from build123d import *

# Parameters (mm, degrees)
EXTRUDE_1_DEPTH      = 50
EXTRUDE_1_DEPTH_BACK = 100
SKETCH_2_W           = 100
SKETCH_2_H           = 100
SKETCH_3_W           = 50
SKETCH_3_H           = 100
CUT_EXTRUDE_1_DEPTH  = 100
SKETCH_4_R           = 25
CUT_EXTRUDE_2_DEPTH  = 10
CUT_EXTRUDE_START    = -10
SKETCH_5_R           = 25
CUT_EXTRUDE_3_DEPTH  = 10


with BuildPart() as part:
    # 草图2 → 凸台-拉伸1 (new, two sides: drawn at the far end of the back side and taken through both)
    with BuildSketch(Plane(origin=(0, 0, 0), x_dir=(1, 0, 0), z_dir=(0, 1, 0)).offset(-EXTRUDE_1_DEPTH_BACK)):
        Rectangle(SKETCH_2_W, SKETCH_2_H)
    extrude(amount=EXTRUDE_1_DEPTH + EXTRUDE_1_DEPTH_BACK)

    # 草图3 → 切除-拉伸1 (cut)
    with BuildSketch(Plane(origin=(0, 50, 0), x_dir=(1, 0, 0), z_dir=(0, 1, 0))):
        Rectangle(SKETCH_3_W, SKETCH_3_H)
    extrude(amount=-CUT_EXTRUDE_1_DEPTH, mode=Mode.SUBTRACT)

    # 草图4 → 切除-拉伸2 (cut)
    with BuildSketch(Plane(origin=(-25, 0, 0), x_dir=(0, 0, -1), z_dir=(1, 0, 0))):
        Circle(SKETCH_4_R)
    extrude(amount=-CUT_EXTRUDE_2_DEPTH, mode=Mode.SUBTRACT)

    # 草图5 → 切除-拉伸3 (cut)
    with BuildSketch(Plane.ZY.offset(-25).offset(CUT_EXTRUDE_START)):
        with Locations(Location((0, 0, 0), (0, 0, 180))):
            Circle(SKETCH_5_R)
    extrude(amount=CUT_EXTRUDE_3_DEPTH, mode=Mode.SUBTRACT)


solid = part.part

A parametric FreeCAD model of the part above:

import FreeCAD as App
import Part
import Sketcher

doc = App.newDocument("Part")
body = doc.addObject("PartDesign::Body", "Body")

# Sketch on XZ plane
sketch1 = body.newObject("Sketcher::SketchObject", "Sketch")
sketch1.AttachmentSupport = (doc.getObject("XZ_Plane"), [""])
sketch1.MapMode = "FlatFace"
sketch1.addGeometry(Part.LineSegment(App.Vector(-50, -50, 0), App.Vector(-50, 50, 0)), False)
sketch1.addGeometry(Part.LineSegment(App.Vector(-50, 50, 0), App.Vector(50, 50, 0)), False)
sketch1.addGeometry(Part.LineSegment(App.Vector(50, 50, 0), App.Vector(50, -50, 0)), False)
sketch1.addGeometry(Part.LineSegment(App.Vector(50, -50, 0), App.Vector(-50, -50, 0)), False)
sketch1.addConstraint(Sketcher.Constraint("Coincident", 0, 2, 1, 1))
sketch1.addConstraint(Sketcher.Constraint("Coincident", 1, 2, 2, 1))
sketch1.addConstraint(Sketcher.Constraint("Coincident", 2, 2, 3, 1))
sketch1.addConstraint(Sketcher.Constraint("Coincident", 3, 2, 0, 1))
sketch1.addConstraint(Sketcher.Constraint("Vertical", 0))
sketch1.addConstraint(Sketcher.Constraint("Horizontal", 1))
sketch1.addConstraint(Sketcher.Constraint("Vertical", 2))
sketch1.addConstraint(Sketcher.Constraint("Horizontal", 3))
sketch1.addConstraint(Sketcher.Constraint("Symmetric", 0, 2, 2, 2, -1, 1))
sketch1.addConstraint(Sketcher.Constraint("Equal", 3, 0))
sketch1.addConstraint(Sketcher.Constraint("DistanceX", 1, 1, 1, 2, 100.0))
pad1 = body.newObject("PartDesign::Pad", "Pad")
pad1.Profile = sketch1
pad1.Type = "TwoLengths"
pad1.Length = 50
pad1.Length2 = 100
pad1.Reversed = True

# Sketch on XZ plane
sketch2 = body.newObject("Sketcher::SketchObject", "Sketch001")
sketch2.AttachmentSupport = (doc.getObject("XZ_Plane"), [""])
sketch2.MapMode = "FlatFace"
sketch2.AttachmentOffset = App.Placement(App.Vector(0, 0, -50), App.Rotation())
sketch2.addGeometry(Part.LineSegment(App.Vector(-25, -50, 0), App.Vector(-25, 50, 0)), False)
sketch2.addGeometry(Part.LineSegment(App.Vector(-25, 50, 0), App.Vector(25, 50, 0)), False)
sketch2.addGeometry(Part.LineSegment(App.Vector(25, 50, 0), App.Vector(25, -50, 0)), False)
sketch2.addGeometry(Part.LineSegment(App.Vector(25, -50, 0), App.Vector(-25, -50, 0)), False)
sketch2.addConstraint(Sketcher.Constraint("Coincident", 0, 2, 1, 1))
sketch2.addConstraint(Sketcher.Constraint("Coincident", 1, 2, 2, 1))
sketch2.addConstraint(Sketcher.Constraint("Coincident", 2, 2, 3, 1))
sketch2.addConstraint(Sketcher.Constraint("Coincident", 3, 2, 0, 1))
sketch2.addConstraint(Sketcher.Constraint("Vertical", 0))
sketch2.addConstraint(Sketcher.Constraint("Horizontal", 1))
sketch2.addConstraint(Sketcher.Constraint("Vertical", 2))
sketch2.addConstraint(Sketcher.Constraint("Horizontal", 3))
sketch2.addConstraint(Sketcher.Constraint("Symmetric", 0, 2, 2, 2, -1, 1))
sketch2.addConstraint(Sketcher.Constraint("DistanceX", 1, 1, 1, 2, 50.0))
sketch2.addConstraint(Sketcher.Constraint("DistanceY", 0, 1, 0, 2, 100.0))
pocket1 = body.newObject("PartDesign::Pocket", "Pocket")
pocket1.Profile = sketch2
pocket1.Length = 100
pocket1.Reversed = True

# Sketch on YZ plane
sketch3 = body.newObject("Sketcher::SketchObject", "Sketch002")
sketch3.AttachmentSupport = (doc.getObject("YZ_Plane"), [""])
sketch3.MapMode = "FlatFace"
sketch3.AttachmentOffset = App.Placement(App.Vector(0, 0, -25), App.Rotation())
sketch3.addGeometry(Part.Circle(App.Vector(0, 0, 0), App.Vector(0, 0, 1), 25), False)
sketch3.addConstraint(Sketcher.Constraint("Coincident", 0, 3, -1, 1))
sketch3.addConstraint(Sketcher.Constraint("Diameter", 0, 50.0))
pocket2 = body.newObject("PartDesign::Pocket", "Pocket001")
pocket2.Profile = sketch3
pocket2.Length = 10

# Sketch on YZ plane
sketch4 = body.newObject("Sketcher::SketchObject", "Sketch003")
sketch4.AttachmentSupport = (doc.getObject("YZ_Plane"), [""])
sketch4.MapMode = "FlatFace"
sketch4.AttachmentOffset = App.Placement(App.Vector(0, 0, 35), App.Rotation())
sketch4.addGeometry(Part.Circle(App.Vector(0, 0, 0), App.Vector(0, 0, 1), 25), False)
sketch4.addConstraint(Sketcher.Constraint("Coincident", 0, 3, -1, 1))
sketch4.addConstraint(Sketcher.Constraint("Diameter", 0, 50.0))
pocket3 = body.newObject("PartDesign::Pocket", "Pocket002")
pocket3.Profile = sketch4
pocket3.Length = 10

doc.recompute()
